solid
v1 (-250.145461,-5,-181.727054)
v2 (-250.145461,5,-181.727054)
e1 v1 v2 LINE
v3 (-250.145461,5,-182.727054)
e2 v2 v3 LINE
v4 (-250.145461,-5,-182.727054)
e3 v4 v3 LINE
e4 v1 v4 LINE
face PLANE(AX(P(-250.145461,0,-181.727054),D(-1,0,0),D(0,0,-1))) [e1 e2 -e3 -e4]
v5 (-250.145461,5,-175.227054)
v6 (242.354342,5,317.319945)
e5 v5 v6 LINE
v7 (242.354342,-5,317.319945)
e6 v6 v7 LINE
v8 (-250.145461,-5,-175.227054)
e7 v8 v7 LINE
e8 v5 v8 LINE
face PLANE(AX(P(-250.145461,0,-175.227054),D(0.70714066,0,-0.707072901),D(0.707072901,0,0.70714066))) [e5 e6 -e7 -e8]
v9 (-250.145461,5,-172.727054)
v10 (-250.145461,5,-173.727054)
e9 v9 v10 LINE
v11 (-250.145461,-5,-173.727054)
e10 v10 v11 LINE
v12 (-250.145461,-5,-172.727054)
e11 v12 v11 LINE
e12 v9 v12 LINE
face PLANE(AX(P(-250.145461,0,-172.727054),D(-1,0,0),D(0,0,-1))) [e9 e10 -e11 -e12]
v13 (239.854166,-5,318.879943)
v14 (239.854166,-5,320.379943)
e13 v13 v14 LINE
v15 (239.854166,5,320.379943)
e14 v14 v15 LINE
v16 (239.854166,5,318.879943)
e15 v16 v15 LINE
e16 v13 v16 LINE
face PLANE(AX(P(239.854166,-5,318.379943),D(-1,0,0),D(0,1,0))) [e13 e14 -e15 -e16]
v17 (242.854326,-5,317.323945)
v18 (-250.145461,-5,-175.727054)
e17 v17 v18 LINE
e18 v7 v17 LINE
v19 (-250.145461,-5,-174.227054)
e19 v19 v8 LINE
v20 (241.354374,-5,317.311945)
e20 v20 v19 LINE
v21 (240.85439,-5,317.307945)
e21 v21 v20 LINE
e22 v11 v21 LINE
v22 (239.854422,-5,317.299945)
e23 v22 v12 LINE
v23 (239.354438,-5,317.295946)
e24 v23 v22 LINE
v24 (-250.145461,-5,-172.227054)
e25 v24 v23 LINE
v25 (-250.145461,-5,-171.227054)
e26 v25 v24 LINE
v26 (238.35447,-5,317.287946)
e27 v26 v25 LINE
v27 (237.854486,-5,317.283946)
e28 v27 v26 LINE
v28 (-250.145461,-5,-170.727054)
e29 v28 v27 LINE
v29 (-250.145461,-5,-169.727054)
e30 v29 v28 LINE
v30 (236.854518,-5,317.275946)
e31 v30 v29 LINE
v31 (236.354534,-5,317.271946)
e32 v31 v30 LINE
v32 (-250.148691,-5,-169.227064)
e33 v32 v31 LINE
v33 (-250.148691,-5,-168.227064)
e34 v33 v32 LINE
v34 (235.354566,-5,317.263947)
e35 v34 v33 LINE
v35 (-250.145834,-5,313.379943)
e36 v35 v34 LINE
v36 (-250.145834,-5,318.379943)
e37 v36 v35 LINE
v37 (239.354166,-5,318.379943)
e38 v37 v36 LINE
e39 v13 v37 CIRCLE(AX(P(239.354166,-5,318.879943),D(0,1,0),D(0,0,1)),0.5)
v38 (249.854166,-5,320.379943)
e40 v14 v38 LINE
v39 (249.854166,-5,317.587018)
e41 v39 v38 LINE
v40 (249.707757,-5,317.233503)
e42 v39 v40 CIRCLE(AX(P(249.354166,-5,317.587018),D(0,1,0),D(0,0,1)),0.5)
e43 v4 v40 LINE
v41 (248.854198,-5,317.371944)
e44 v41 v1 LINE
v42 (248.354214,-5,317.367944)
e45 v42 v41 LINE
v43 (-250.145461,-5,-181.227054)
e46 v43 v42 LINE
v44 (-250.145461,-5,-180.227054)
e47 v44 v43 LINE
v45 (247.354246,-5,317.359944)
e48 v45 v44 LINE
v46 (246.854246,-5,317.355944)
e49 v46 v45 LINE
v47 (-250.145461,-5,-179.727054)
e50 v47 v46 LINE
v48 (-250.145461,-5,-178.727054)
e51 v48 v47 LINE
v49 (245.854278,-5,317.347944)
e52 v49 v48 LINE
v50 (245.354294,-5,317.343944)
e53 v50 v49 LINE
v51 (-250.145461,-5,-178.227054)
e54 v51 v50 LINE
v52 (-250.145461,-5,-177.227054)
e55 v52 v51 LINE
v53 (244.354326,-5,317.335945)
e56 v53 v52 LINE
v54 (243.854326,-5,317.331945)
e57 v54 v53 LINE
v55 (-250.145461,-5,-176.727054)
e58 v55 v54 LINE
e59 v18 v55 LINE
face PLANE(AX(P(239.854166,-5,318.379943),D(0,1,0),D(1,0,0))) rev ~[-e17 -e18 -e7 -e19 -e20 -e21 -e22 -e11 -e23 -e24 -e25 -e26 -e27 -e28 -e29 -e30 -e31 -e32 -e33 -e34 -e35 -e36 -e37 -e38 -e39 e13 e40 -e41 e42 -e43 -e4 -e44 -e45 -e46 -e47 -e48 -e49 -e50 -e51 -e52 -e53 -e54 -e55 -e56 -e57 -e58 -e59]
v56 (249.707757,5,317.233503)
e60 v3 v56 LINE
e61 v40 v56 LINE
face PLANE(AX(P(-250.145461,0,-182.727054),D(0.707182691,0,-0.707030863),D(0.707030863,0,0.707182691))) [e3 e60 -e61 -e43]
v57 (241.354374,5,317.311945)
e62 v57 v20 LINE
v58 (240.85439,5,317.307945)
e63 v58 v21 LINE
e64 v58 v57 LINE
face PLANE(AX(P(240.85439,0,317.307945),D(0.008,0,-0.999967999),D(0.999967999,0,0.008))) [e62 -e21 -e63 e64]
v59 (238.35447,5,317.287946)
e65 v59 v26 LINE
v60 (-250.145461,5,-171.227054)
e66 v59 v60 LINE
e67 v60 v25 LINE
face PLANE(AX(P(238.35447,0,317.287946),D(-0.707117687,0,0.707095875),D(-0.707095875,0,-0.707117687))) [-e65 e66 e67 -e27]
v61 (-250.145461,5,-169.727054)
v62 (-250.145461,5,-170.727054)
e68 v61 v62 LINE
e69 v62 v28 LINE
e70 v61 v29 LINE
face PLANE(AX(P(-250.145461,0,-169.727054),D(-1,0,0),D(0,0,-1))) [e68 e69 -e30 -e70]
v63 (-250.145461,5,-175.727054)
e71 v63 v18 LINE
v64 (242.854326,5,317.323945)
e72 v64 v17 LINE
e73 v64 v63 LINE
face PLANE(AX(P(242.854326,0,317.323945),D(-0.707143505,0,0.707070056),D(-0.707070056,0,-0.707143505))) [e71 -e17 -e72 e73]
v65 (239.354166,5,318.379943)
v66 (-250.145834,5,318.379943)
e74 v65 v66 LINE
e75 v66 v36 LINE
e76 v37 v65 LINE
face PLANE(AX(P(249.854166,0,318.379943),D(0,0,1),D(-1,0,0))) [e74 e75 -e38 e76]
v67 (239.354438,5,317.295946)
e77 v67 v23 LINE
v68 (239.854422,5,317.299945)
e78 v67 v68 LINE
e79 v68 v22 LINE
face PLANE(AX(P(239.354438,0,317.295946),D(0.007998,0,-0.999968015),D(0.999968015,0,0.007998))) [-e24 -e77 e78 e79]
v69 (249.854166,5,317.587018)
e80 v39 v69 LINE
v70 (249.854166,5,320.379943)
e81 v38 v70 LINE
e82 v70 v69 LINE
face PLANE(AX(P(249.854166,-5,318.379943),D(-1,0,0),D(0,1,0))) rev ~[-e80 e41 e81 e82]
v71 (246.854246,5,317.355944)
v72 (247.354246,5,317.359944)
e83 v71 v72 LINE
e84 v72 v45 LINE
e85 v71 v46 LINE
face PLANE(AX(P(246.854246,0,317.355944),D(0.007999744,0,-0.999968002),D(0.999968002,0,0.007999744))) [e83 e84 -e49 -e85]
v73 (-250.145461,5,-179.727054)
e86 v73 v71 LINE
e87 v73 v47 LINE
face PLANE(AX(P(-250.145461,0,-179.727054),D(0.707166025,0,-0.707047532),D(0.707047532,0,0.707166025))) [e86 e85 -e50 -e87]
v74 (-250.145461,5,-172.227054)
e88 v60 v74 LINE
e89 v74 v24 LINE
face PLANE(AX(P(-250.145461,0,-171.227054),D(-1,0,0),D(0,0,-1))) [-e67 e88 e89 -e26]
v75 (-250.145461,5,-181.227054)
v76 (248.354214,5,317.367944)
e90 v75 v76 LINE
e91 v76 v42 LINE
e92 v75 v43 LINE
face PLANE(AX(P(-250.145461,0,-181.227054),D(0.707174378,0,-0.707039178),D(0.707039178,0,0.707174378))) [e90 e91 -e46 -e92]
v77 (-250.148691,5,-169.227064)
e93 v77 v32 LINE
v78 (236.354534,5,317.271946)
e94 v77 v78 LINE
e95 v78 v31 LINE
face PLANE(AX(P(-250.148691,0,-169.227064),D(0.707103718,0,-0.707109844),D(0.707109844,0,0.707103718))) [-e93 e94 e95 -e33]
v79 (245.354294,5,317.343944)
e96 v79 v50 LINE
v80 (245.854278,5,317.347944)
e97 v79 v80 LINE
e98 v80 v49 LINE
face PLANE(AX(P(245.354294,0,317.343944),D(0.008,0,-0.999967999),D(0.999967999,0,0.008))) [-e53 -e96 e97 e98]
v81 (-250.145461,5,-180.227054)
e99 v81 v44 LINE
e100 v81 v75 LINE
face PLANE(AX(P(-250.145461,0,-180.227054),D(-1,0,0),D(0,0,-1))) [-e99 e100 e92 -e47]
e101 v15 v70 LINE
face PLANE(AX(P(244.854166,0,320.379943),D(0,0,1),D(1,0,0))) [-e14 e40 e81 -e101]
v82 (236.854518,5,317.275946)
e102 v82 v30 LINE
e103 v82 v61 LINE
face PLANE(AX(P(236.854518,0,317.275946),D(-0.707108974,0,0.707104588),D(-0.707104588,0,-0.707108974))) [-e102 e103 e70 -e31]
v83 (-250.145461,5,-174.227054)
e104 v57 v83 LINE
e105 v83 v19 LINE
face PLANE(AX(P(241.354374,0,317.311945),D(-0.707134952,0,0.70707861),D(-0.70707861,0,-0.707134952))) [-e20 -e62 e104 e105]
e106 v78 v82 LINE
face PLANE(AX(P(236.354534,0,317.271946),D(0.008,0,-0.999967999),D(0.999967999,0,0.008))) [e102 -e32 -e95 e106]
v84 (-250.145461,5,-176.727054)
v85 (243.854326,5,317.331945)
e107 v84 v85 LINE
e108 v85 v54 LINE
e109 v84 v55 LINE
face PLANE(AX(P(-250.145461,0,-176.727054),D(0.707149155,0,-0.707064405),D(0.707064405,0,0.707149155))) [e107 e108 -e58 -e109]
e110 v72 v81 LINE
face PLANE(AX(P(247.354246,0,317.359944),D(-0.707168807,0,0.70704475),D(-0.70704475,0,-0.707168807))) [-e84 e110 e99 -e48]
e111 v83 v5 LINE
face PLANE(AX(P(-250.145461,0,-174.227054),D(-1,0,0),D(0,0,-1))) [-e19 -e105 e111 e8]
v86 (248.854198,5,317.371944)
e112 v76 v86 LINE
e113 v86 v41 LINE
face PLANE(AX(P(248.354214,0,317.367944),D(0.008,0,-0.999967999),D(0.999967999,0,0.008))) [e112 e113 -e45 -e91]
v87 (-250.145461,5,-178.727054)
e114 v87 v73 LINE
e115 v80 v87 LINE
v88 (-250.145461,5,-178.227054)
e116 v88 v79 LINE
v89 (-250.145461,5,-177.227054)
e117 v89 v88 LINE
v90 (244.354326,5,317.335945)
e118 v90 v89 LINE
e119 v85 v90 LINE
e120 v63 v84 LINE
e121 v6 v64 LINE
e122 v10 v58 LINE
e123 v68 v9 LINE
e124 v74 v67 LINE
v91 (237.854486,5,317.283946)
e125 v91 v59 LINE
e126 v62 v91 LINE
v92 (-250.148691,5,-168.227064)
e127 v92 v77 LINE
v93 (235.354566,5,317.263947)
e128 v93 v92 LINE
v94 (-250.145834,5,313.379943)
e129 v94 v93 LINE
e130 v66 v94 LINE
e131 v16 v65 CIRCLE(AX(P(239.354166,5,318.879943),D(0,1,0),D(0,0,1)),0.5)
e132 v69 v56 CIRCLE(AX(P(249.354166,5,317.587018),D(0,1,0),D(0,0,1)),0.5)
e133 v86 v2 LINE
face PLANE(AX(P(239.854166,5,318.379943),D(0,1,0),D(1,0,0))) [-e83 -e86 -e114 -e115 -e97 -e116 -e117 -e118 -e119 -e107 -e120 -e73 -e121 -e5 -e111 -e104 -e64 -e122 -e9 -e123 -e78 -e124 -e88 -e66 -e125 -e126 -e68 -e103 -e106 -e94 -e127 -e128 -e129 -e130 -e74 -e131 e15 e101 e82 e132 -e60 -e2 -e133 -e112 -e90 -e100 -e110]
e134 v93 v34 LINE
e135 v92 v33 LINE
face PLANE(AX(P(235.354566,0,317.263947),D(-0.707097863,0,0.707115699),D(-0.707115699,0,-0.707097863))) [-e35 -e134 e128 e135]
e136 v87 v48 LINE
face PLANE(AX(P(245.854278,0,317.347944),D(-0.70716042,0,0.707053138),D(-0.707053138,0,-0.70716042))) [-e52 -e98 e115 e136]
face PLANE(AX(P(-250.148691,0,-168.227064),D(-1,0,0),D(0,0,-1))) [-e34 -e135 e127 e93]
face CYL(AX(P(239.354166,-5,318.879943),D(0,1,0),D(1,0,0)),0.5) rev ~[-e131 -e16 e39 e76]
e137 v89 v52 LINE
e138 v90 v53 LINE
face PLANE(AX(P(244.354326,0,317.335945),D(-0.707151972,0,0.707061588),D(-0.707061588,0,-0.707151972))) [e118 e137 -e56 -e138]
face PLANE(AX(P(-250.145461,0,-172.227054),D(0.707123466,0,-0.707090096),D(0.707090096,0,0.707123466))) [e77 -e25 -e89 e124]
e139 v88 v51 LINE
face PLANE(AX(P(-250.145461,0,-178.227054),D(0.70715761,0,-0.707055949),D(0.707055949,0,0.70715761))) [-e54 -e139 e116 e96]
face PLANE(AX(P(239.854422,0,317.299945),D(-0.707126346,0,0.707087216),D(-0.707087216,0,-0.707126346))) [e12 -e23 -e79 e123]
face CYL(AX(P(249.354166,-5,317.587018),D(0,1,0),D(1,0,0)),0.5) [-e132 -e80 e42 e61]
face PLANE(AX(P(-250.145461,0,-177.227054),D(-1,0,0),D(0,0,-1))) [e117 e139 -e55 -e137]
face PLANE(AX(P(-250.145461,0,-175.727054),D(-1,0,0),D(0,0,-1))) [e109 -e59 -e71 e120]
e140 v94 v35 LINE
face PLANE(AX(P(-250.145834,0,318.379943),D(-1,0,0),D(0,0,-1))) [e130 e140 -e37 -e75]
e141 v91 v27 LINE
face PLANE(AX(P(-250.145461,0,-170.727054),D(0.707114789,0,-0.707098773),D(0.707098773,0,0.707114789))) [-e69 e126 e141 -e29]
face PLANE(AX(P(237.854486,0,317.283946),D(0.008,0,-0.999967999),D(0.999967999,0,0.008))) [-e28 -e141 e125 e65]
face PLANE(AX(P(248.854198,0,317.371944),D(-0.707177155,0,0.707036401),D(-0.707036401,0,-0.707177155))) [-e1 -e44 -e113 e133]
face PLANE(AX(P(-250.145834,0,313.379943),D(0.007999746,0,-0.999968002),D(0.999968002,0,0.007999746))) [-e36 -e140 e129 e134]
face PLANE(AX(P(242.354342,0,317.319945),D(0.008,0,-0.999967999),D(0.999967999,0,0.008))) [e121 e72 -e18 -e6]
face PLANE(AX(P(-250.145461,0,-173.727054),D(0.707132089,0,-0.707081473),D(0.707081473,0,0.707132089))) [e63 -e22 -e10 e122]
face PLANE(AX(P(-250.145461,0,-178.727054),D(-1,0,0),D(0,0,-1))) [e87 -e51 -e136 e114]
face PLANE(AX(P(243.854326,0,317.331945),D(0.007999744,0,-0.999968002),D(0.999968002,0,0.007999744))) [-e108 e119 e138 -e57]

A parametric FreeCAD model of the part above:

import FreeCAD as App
import Part
import Sketcher
Q = App.Units.Quantity


def edges_at(feature, points):
    """Names of the edges that pass closest to the given points."""
    edges = feature.Shape.Edges
    near = lambda p: min(range(len(edges)), key=lambda i: edges[i].distToShape(Part.Vertex(*p))[0])
    return sorted({f"Edge{near(p) + 1}" for p in points})

doc = App.newDocument("Part")
body = doc.addObject("PartDesign::Body", "Body")

# Sketch on XZ plane
sketch1 = body.newObject("Sketcher::SketchObject", "Sketch")
sketch1.AttachmentSupport = (doc.getObject("XZ_Plane"), [""])
sketch1.MapMode = "FlatFace"
sketch1.addGeometry([
    Part.LineSegment(App.Vector(249.854166, 317.379943, 0), App.Vector(249.854166, 318.379943, 0)),  # 0
    Part.LineSegment(App.Vector(249.854166, 318.379943, 0), App.Vector(-250.145834, 318.379943, 0)),  # 1
    Part.LineSegment(App.Vector(-250.145834, 318.379943, 0), App.Vector(-250.145834, 313.379943, 0)),  # 2
    Part.LineSegment(App.Vector(-250.145834, 313.379943, 0), App.Vector(235.354566, 317.263947, 0)),  # 3
    Part.LineSegment(App.Vector(235.354566, 317.263947, 0), App.Vector(-250.148691, -168.227064, 0)),  # 4
    Part.LineSegment(App.Vector(-250.148691, -168.227064, 0), App.Vector(-250.148691, -169.227064, 0)),  # 5
    Part.LineSegment(App.Vector(-250.148691, -169.227064, 0), App.Vector(236.354534, 317.271946, 0)),  # 6
    Part.LineSegment(App.Vector(236.354534, 317.271946, 0), App.Vector(236.854518, 317.275946, 0)),  # 7
    Part.LineSegment(App.Vector(236.854518, 317.275946, 0), App.Vector(-250.145461, -169.727054, 0)),  # 8
    Part.LineSegment(App.Vector(-250.145461, -169.727054, 0), App.Vector(-250.145461, -170.727054, 0)),  # 9
    Part.LineSegment(App.Vector(-250.145461, -170.727054, 0), App.Vector(237.854486, 317.283946, 0)),  # 10
    Part.LineSegment(App.Vector(237.854486, 317.283946, 0), App.Vector(238.35447, 317.287946, 0)),  # 11
    Part.LineSegment(App.Vector(238.35447, 317.287946, 0), App.Vector(-250.145461, -171.227054, 0)),  # 12
    Part.LineSegment(App.Vector(-250.145461, -171.227054, 0), App.Vector(-250.145461, -172.227054, 0)),  # 13
    Part.LineSegment(App.Vector(-250.145461, -172.227054, 0), App.Vector(239.354438, 317.295946, 0)),  # 14
    Part.LineSegment(App.Vector(239.354438, 317.295946, 0), App.Vector(239.854422, 317.299945, 0)),  # 15
    Part.LineSegment(App.Vector(239.854422, 317.299945, 0), App.Vector(-250.145461, -172.727054, 0)),  # 16
    Part.LineSegment(App.Vector(-250.145461, -172.727054, 0), App.Vector(-250.145461, -173.727054, 0)),  # 17
    Part.LineSegment(App.Vector(-250.145461, -173.727054, 0), App.Vector(240.85439, 317.307945, 0)),  # 18
    Part.LineSegment(App.Vector(240.85439, 317.307945, 0), App.Vector(241.354374, 317.311945, 0)),  # 19
    Part.LineSegment(App.Vector(241.354374, 317.311945, 0), App.Vector(-250.145461, -174.227054, 0)),  # 20
    Part.LineSegment(App.Vector(-250.145461, -174.227054, 0), App.Vector(-250.145461, -175.227054, 0)),  # 21
    Part.LineSegment(App.Vector(-250.145461, -175.227054, 0), App.Vector(242.354342, 317.319945, 0)),  # 22
    Part.LineSegment(App.Vector(242.354342, 317.319945, 0), App.Vector(242.854326, 317.323945, 0)),  # 23
    Part.LineSegment(App.Vector(242.854326, 317.323945, 0), App.Vector(-250.145461, -175.727054, 0)),  # 24
    Part.LineSegment(App.Vector(-250.145461, -175.727054, 0), App.Vector(-250.145461, -176.727054, 0)),  # 25
    Part.LineSegment(App.Vector(-250.145461, -176.727054, 0), App.Vector(243.854326, 317.331945, 0)),  # 26
    Part.LineSegment(App.Vector(243.854326, 317.331945, 0), App.Vector(244.354326, 317.335945, 0)),  # 27
    Part.LineSegment(App.Vector(244.354326, 317.335945, 0), App.Vector(-250.145461, -177.227054, 0)),  # 28
    Part.LineSegment(App.Vector(-250.145461, -177.227054, 0), App.Vector(-250.145461, -178.227054, 0)),  # 29
    Part.LineSegment(App.Vector(-250.145461, -178.227054, 0), App.Vector(245.354294, 317.343944, 0)),  # 30
    Part.LineSegment(App.Vector(245.354294, 317.343944, 0), App.Vector(245.854278, 317.347944, 0)),  # 31
    Part.LineSegment(App.Vector(245.854278, 317.347944, 0), App.Vector(-250.145461, -178.727054, 0)),  # 32
    Part.LineSegment(App.Vector(-250.145461, -178.727054, 0), App.Vector(-250.145461, -179.727054, 0)),  # 33
    Part.LineSegment(App.Vector(-250.145461, -179.727054, 0), App.Vector(246.854246, 317.355944, 0)),  # 34
    Part.LineSegment(App.Vector(246.854246, 317.355944, 0), App.Vector(247.354246, 317.359944, 0)),  # 35
    Part.LineSegment(App.Vector(247.354246, 317.359944, 0), App.Vector(-250.145461, -180.227054, 0)),  # 36
    Part.LineSegment(App.Vector(-250.145461, -180.227054, 0), App.Vector(-250.145461, -181.227054, 0)),  # 37
    Part.LineSegment(App.Vector(-250.145461, -181.227054, 0), App.Vector(248.354214, 317.367944, 0)),  # 38
    Part.LineSegment(App.Vector(248.354214, 317.367944, 0), App.Vector(248.854198, 317.371944, 0)),  # 39
    Part.LineSegment(App.Vector(248.854198, 317.371944, 0), App.Vector(-250.145461, -181.727054, 0)),  # 40
    Part.LineSegment(App.Vector(-250.145461, -181.727054, 0), App.Vector(-250.145461, -182.727054, 0)),  # 41
    Part.LineSegment(App.Vector(-250.145461, -182.727054, 0), App.Vector(249.854166, 317.379943, 0)),  # 42
], False)
sketch1.addConstraint([
    Sketcher.Constraint("Coincident", 0, 2, 1, 1),
    Sketcher.Constraint("Coincident", 1, 2, 2, 1),
    Sketcher.Constraint("Coincident", 2, 2, 3, 1),
    Sketcher.Constraint("Coincident", 3, 2, 4, 1),
    Sketcher.Constraint("Coincident", 4, 2, 5, 1),
    Sketcher.Constraint("Coincident", 5, 2, 6, 1),
    Sketcher.Constraint("Coincident", 6, 2, 7, 1),
    Sketcher.Constraint("Coincident", 7, 2, 8, 1),
    Sketcher.Constraint("Coincident", 8, 2, 9, 1),
    Sketcher.Constraint("Coincident", 9, 2, 10, 1),
    Sketcher.Constraint("Coincident", 10, 2, 11, 1),
    Sketcher.Constraint("Coincident", 11, 2, 12, 1),
    Sketcher.Constraint("Coincident", 12, 2, 13, 1),
    Sketcher.Constraint("Coincident", 13, 2, 14, 1),
    Sketcher.Constraint("Coincident", 14, 2, 15, 1),
    Sketcher.Constraint("Coincident", 15, 2, 16, 1),
    Sketcher.Constraint("Coincident", 16, 2, 17, 1),
    Sketcher.Constraint("Coincident", 17, 2, 18, 1),
    Sketcher.Constraint("Coincident", 18, 2, 19, 1),
    Sketcher.Constraint("Coincident", 19, 2, 20, 1),
    Sketcher.Constraint("Coincident", 20, 2, 21, 1),
    Sketcher.Constraint("Coincident", 21, 2, 22, 1),
    Sketcher.Constraint("Coincident", 22, 2, 23, 1),
    Sketcher.Constraint("Coincident", 23, 2, 24, 1),
    Sketcher.Constraint("Coincident", 24, 2, 25, 1),
    Sketcher.Constraint("Coincident", 25, 2, 26, 1),
    Sketcher.Constraint("Coincident", 26, 2, 27, 1),
    Sketcher.Constraint("Coincident", 27, 2, 28, 1),
    Sketcher.Constraint("Coincident", 28, 2, 29, 1),
    Sketcher.Constraint("Coincident", 29, 2, 30, 1),
    Sketcher.Constraint("Coincident", 30, 2, 31, 1),
    Sketcher.Constraint("Coincident", 31, 2, 32, 1),
    Sketcher.Constraint("Coincident", 32, 2, 33, 1),
    Sketcher.Constraint("Coincident", 33, 2, 34, 1),
    Sketcher.Constraint("Coincident", 34, 2, 35, 1),
    Sketcher.Constraint("Coincident", 35, 2, 36, 1),
    Sketcher.Constraint("Coincident", 36, 2, 37, 1),
    Sketcher.Constraint("Coincident", 37, 2, 38, 1),
    Sketcher.Constraint("Coincident", 38, 2, 39, 1),
    Sketcher.Constraint("Coincident", 39, 2, 40, 1),
    Sketcher.Constraint("Coincident", 40, 2, 41, 1),
    Sketcher.Constraint("Coincident", 41, 2, 42, 1),
    Sketcher.Constraint("Coincident", 42, 2, 0, 1),
    Sketcher.Constraint("Vertical", 0),
    Sketcher.Constraint("Horizontal", 1),
    Sketcher.Constraint("Vertical", 2),
    Sketcher.Constraint("Vertical", 5),
    Sketcher.Constraint("Vertical", 9),
    Sketcher.Constraint("Vertical", 13),
    Sketcher.Constraint("Vertical", 17),
    Sketcher.Constraint("Vertical", 21),
    Sketcher.Constraint("Vertical", 25),
    Sketcher.Constraint("Vertical", 29),
    Sketcher.Constraint("Vertical", 33),
    Sketcher.Constraint("Vertical", 37),
    Sketcher.Constraint("Vertical", 41),
    Sketcher.Constraint("Parallel", 3, 7),
    Sketcher.Constraint("Parallel", 7, 11),
    Sketcher.Constraint("Parallel", 11, 15),
    Sketcher.Constraint("Parallel", 15, 19),
    Sketcher.Constraint("Parallel", 19, 23),
    Sketcher.Constraint("Parallel", 23, 27),
    Sketcher.Constraint("Parallel", 27, 31),
    Sketcher.Constraint("Parallel", 31, 35),
    Sketcher.Constraint("Parallel", 35, 39),
    Sketcher.Constraint("Vertical", 9, 2, 12, 2),
    Sketcher.Constraint("Vertical", 13, 2, 16, 2),
    Sketcher.Constraint("Vertical", 17, 2, 20, 2),
    Sketcher.Constraint("Vertical", 21, 2, 24, 2),
    Sketcher.Constraint("Vertical", 25, 2, 28, 2),
    Sketcher.Constraint("Vertical", 29, 2, 32, 2),
    Sketcher.Constraint("Vertical", 33, 2, 36, 2),
    Sketcher.Constraint("Vertical", 37, 2, 40, 2),
    Sketcher.Constraint("Equal", 0, 5),
    Sketcher.Constraint("Equal", 5, 9),
    Sketcher.Constraint("Equal", 9, 13),
    Sketcher.Constraint("Equal", 13, 17),
    Sketcher.Constraint("Equal", 17, 21),
    Sketcher.Constraint("Equal", 21, 25),
    Sketcher.Constraint("Equal", 25, 29),
    Sketcher.Constraint("Equal", 29, 33),
    Sketcher.Constraint("Equal", 33, 37),
    Sketcher.Constraint("Equal", 37, 41),
    Sketcher.Constraint("Equal", 7, 11),
    Sketcher.Constraint("Equal", 11, 15),
    Sketcher.Constraint("Equal", 15, 19),
    Sketcher.Constraint("Equal", 19, 23),
    Sketcher.Constraint("Equal", 23, 31),
    Sketcher.Constraint("Equal", 27, 35),
    Sketcher.Constraint("Equal", 31, 39),
    Sketcher.Constraint("DistanceX", 1, 2, 1, 1, Q("500 mm")),
    Sketcher.Constraint("DistanceY", 0, 1, 0, 2, Q("1 mm")),
    Sketcher.Constraint("DistanceY", 2, 2, 2, 1, Q("5 mm")),
    Sketcher.Constraint("DistanceY", 16, 2, 9, 2, Q("2 mm")),
    Sketcher.Constraint("DistanceY", 20, 2, 13, 2, Q("2 mm")),
    Sketcher.Constraint("DistanceY", 24, 2, 17, 2, Q("2 mm")),
    Sketcher.Constraint("DistanceX", 23, 2, 26, 2, Q("1 mm")),
    Sketcher.Constraint("DistanceY", 28, 2, 21, 2, Q("2 mm")),
    Sketcher.Constraint("DistanceY", 32, 2, 25, 2, Q("2 mm")),
    Sketcher.Constraint("DistanceY", 36, 2, 29, 2, Q("2 mm")),
    Sketcher.Constraint("DistanceY", 40, 2, 33, 2, Q("2 mm")),
    Sketcher.Constraint("Distance", 7, Q("0.5 mm")),
    Sketcher.Constraint("DistanceY", 12, 2, 9, 2, Q("0.5 mm")),
    Sketcher.Constraint("DistanceX", 26, 2, 27, 2, Q("0.5 mm")),
    Sketcher.Constraint("DistanceY", 3, 2, 10, 2, Q("0.019999 mm")),
    Sketcher.Constraint("DistanceY", 7, 2, 14, 2, Q("0.02 mm")),
    Sketcher.Constraint("DistanceY", 11, 2, 18, 2, Q("0.019999 mm")),
    Sketcher.Constraint("DistanceY", 15, 2, 22, 2, Q("0.02 mm")),
    Sketcher.Constraint("DistanceY", 19, 2, 26, 2, Q("0.02 mm")),
    Sketcher.Constraint("DistanceY", 23, 2, 30, 2, Q("0.019999 mm")),
    Sketcher.Constraint("DistanceY", 27, 2, 34, 2, Q("0.019999 mm")),
    Sketcher.Constraint("DistanceY", 35, 2, 0, 2, Q("1.019999 mm")),
    Sketcher.Constraint("DistanceY", 31, 2, 38, 2, Q("0.02 mm")),
    Sketcher.Constraint("DistanceY", 3, 2, 6, 2, Q("0.007999 mm")),
    Sketcher.Constraint("DistanceY", 8, 2, 3, 2, Q("486.991001 mm")),
    Sketcher.Constraint("Distance", 24, Q("697.243198 mm")),
    Sketcher.Constraint("DistanceX", -1, 1, 39, 2, Q("248.854198 mm")),
    Sketcher.Constraint("DistanceX", 3, 2, 0, 2, Q("14.4996 mm")),
    Sketcher.Constraint("Distance", 4, Q("686.596631 mm")),
    Sketcher.Constraint("Distance", 6, Q("688.016478 mm")),
    Sketcher.Constraint("Distance", 8, Q("688.724111 mm")),
    Sketcher.Constraint("Distance", 10, Q("690.143959 mm")),
    Sketcher.Constraint("Distance", 14, Q("692.273731 mm")),
    Sketcher.Constraint("Distance", 30, Q("700.792852 mm")),
    Sketcher.Constraint("Distance", 36, Q("703.63256 mm")),
    Sketcher.Constraint("DistanceX", 4, 2, -1, 1, Q("250.148691 mm")),
    Sketcher.Constraint("DistanceX", -1, 1, 7, 2, Q("236.854518 mm")),
    Sketcher.Constraint("DistanceX", -1, 1, 18, 2, Q("240.85439 mm")),
    Sketcher.Constraint("DistanceY", -1, 1, 0, 2, Q("318.379943 mm")),
])
pad1 = body.newObject("PartDesign::Pad", "Pad")
pad1.Profile = sketch1
pad1.Length = 10
pad1.Midplane = True

# Sketch on XY plane
sketch2 = body.newObject("Sketcher::SketchObject", "Sketch001")
sketch2.AttachmentSupport = (doc.getObject("XY_Plane"), [""])
sketch2.MapMode = "FlatFace"
sketch2.AttachmentOffset = App.Placement(App.Vector(0, 0, 318.379943), App.Rotation())
sketch2.addGeometry([
    Part.LineSegment(App.Vector(239.854166, 5, 0), App.Vector(239.854166, -5, 0)),
    Part.LineSegment(App.Vector(239.854166, -5, 0), App.Vector(249.854166, -5, 0)),
    Part.LineSegment(App.Vector(249.854166, -5, 0), App.Vector(249.854166, 5, 0)),
    Part.LineSegment(App.Vector(249.854166, 5, 0), App.Vector(239.854166, 5, 0)),
], False)
sketch2.addConstraint([
    Sketcher.Constraint("Coincident", 0, 2, 1, 1),
    Sketcher.Constraint("Coincident", 1, 2, 2, 1),
    Sketcher.Constraint("Coincident", 2, 2, 3, 1),
    Sketcher.Constraint("Coincident", 3, 2, 0, 1),
    Sketcher.Constraint("Vertical", 0),
    Sketcher.Constraint("Horizontal", 1),
    Sketcher.Constraint("Vertical", 2),
    Sketcher.Constraint("Horizontal", 3),
    Sketcher.Constraint("Equal", 3, 0),
    Sketcher.Constraint("DistanceX", 1, 1, 1, 2, Q("10 mm")),
    Sketcher.Constraint("DistanceY", 0, 2, -1, 1, Q("5 mm")),
    Sketcher.Constraint("DistanceX", -1, 1, 0, 2, Q("239.854166 mm")),
])
pad2 = body.newObject("PartDesign::Pad", "Pad001")
pad2.Profile = sketch2
pad2.Length = 2
doc.recompute()

fillet = body.newObject("PartDesign::Fillet", "Fillet")
fillet.Base = (pad2, edges_at(pad2, [(239.854, 0, 318.38), (249.854, 0, 317.38)]))
fillet.Radius = 0.5

doc.recompute()
